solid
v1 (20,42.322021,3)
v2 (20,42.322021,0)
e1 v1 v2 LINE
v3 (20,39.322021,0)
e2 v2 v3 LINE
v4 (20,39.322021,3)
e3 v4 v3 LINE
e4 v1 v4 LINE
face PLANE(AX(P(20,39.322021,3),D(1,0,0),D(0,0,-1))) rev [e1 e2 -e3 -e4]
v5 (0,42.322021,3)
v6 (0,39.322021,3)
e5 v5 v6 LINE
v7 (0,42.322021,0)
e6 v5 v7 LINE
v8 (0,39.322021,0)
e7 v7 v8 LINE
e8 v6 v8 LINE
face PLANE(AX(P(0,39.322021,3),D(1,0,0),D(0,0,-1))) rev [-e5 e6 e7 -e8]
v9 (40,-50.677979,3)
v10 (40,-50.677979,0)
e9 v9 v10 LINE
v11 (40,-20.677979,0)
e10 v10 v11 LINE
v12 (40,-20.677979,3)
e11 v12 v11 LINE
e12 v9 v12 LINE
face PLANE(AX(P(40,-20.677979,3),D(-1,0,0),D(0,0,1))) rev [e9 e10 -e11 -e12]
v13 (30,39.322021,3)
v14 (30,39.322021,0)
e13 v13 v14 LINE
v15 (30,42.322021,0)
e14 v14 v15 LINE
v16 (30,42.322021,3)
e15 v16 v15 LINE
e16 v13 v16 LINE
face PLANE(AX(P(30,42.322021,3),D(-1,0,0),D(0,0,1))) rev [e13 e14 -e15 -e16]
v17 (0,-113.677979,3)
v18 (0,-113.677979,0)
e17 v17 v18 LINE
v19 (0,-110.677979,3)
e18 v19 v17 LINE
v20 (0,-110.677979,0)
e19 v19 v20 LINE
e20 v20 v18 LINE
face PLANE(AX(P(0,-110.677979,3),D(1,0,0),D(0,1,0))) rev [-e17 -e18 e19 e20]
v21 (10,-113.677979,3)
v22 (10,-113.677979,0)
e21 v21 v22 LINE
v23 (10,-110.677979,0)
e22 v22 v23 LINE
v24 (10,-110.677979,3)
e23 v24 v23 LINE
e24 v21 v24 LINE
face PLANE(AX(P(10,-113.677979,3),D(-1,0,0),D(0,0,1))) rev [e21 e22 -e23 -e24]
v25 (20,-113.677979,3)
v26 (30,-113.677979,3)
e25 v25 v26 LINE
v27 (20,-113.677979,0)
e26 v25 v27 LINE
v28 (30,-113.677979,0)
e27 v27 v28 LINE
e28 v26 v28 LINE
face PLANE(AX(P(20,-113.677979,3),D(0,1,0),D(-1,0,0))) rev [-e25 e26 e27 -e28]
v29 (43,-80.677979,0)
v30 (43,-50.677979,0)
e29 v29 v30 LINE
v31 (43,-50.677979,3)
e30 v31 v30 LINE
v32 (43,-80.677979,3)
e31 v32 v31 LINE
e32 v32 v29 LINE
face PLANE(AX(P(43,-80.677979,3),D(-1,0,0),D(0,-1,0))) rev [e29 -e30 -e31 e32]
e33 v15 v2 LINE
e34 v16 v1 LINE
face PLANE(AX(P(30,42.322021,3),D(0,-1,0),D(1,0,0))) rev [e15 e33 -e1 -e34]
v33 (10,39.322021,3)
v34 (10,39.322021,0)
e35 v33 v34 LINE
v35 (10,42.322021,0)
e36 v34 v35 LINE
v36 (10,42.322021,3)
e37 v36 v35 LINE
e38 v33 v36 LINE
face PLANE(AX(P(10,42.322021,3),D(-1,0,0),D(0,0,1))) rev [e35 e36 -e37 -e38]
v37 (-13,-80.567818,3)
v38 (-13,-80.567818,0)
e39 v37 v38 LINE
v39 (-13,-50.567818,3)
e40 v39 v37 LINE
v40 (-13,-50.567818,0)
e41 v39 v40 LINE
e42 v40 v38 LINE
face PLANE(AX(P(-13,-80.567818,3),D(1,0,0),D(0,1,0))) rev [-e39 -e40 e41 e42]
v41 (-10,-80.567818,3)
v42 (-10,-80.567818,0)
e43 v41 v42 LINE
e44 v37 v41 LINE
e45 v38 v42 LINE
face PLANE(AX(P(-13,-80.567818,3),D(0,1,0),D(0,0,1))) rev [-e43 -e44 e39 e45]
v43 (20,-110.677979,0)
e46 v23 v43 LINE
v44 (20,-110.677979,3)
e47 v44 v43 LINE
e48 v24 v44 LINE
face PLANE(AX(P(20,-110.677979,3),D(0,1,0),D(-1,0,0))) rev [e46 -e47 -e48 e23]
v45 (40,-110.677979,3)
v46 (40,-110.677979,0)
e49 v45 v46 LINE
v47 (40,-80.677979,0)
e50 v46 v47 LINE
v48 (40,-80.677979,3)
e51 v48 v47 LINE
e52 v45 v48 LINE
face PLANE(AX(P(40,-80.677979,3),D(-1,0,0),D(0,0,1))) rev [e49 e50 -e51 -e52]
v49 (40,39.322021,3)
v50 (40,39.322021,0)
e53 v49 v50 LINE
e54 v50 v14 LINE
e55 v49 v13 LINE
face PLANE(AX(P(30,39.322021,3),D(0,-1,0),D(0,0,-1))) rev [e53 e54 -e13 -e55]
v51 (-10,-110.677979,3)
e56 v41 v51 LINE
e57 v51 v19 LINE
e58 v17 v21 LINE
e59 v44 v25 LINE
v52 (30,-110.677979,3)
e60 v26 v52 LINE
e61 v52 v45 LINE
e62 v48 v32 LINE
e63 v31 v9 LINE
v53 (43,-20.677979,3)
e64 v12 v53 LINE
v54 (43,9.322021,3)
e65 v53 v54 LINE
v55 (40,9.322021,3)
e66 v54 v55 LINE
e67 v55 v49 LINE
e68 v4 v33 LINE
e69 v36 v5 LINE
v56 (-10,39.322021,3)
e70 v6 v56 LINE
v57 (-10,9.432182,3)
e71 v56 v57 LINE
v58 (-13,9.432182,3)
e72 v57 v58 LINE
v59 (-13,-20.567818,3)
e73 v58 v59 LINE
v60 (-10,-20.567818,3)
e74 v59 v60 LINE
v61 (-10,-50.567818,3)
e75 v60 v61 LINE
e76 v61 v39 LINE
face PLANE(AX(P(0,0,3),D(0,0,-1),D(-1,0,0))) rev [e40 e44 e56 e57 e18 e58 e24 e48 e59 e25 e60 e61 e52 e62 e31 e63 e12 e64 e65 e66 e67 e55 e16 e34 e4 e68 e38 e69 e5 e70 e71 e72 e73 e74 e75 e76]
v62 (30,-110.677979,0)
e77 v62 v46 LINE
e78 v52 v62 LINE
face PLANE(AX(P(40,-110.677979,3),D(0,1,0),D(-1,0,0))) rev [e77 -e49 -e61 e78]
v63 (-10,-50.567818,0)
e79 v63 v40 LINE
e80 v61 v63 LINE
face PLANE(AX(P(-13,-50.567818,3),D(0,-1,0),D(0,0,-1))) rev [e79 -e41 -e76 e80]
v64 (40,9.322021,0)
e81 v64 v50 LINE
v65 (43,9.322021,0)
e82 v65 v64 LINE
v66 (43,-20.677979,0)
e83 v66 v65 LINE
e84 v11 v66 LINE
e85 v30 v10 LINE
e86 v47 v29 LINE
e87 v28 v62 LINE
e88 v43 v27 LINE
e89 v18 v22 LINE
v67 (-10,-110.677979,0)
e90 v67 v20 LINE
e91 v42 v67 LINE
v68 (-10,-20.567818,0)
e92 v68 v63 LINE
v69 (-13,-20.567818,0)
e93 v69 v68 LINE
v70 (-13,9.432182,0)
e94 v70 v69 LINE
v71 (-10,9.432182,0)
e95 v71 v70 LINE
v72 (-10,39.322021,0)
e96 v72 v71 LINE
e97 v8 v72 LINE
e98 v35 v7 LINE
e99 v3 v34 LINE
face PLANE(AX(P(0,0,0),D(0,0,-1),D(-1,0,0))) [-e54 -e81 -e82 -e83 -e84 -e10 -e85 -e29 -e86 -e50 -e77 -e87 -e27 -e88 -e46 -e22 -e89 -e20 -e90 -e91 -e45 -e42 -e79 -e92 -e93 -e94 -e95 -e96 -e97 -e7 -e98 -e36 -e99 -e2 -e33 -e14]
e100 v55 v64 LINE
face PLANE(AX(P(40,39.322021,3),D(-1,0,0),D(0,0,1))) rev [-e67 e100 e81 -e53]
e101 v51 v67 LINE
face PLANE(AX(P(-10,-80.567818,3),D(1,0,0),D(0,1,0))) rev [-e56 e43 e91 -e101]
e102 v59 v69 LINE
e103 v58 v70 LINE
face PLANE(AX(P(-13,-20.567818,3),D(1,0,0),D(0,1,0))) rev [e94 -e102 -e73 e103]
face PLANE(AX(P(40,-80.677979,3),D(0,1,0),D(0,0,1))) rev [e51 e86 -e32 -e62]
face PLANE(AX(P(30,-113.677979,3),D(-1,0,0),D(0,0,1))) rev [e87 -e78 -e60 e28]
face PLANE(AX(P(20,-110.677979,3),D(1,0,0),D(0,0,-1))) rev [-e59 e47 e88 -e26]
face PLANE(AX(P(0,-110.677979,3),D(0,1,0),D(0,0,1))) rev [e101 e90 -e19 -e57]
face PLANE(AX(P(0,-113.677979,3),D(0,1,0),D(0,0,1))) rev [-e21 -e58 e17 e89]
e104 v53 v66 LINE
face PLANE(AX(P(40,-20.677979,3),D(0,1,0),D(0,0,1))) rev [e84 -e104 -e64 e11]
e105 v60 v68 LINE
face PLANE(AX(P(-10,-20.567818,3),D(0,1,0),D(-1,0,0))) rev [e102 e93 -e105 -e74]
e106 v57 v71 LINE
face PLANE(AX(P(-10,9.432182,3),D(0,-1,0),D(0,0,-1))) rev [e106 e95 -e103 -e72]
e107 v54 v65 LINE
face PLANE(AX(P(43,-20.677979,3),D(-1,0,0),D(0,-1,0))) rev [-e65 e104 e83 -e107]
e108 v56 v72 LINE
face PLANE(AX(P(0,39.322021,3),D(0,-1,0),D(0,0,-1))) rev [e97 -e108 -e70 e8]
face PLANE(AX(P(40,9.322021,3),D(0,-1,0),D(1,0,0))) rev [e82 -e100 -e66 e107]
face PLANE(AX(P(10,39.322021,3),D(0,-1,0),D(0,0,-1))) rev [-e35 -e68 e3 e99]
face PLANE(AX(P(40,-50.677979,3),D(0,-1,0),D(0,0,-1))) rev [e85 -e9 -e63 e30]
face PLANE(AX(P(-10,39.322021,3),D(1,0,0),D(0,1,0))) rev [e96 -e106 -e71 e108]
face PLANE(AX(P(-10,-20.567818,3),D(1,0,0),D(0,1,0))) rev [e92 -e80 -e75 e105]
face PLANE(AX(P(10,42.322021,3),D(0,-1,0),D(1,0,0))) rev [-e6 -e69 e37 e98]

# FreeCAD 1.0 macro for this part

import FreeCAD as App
import Part
import Sketcher

V = App.Vector
Q = App.Units.Quantity

doc = App.newDocument("Part")
body = doc.addObject("PartDesign::Body", "Body")

# Sketch on XY plane
sketch1 = body.newObject("Sketcher::SketchObject", "Sketch")
sketch1.AttachmentSupport = (doc.getObject("XY_Plane"), [""])
sketch1.MapMode = "FlatFace"
sketch1.addGeometry(Part.LineSegment(V(-10, -20.6, 0), V(-10, -50.6, 0)), False)
sketch1.addGeometry(Part.LineSegment(V(-10, -50.6, 0), V(-13, -50.6, 0)), False)
sketch1.addGeometry(Part.LineSegment(V(-13, -50.6, 0), V(-13, -80.6, 0)), False)
sketch1.addGeometry(Part.LineSegment(V(-13, -80.6, 0), V(-10, -80.6, 0)), False)
sketch1.addGeometry(Part.LineSegment(V(-10, -80.6, 0), V(-10, -110.7, 0)), False)
sketch1.addGeometry(Part.LineSegment(V(-10, -110.7, 0), V(0, -110.7, 0)), False)
sketch1.addGeometry(Part.LineSegment(V(0, -110.7, 0), V(0, -113.7, 0)), False)
sketch1.addGeometry(Part.LineSegment(V(0, -113.7, 0), V(10, -113.7, 0)), False)
sketch1.addGeometry(Part.LineSegment(V(10, -113.7, 0), V(10, -110.7, 0)), False)
sketch1.addGeometry(Part.LineSegment(V(10, -110.7, 0), V(20, -110.7, 0)), False)
sketch1.addGeometry(Part.LineSegment(V(20, -110.7, 0), V(20, -113.7, 0)), False)
sketch1.addGeometry(Part.LineSegment(V(20, -113.7, 0), V(30, -113.7, 0)), False)
sketch1.addGeometry(Part.LineSegment(V(30, -113.7, 0), V(30, -110.7, 0)), False)
sketch1.addGeometry(Part.LineSegment(V(30, -110.7, 0), V(40, -110.7, 0)), False)
sketch1.addGeometry(Part.LineSegment(V(40, -110.7, 0), V(40, -80.7, 0)), False)
sketch1.addGeometry(Part.LineSegment(V(40, -80.7, 0), V(43, -80.7, 0)), False)
sketch1.addGeometry(Part.LineSegment(V(43, -80.7, 0), V(43, -50.7, 0)), False)
sketch1.addGeometry(Part.LineSegment(V(43, -50.7, 0), V(40, -50.7, 0)), False)
sketch1.addGeometry(Part.LineSegment(V(40, -50.7, 0), V(40, -20.7, 0)), False)
sketch1.addGeometry(Part.LineSegment(V(40, -20.7, 0), V(43, -20.7, 0)), False)
sketch1.addGeometry(Part.LineSegment(V(43, -20.7, 0), V(43, 9.3, 0)), False)
sketch1.addGeometry(Part.LineSegment(V(43, 9.3, 0), V(40, 9.3, 0)), False)
sketch1.addGeometry(Part.LineSegment(V(40, 9.3, 0), V(40, 39.3, 0)), False)
sketch1.addGeometry(Part.LineSegment(V(40, 39.3, 0), V(30, 39.3, 0)), False)
sketch1.addGeometry(Part.LineSegment(V(30, 39.3, 0), V(30, 42.3, 0)), False)
sketch1.addGeometry(Part.LineSegment(V(30, 42.3, 0), V(20, 42.3, 0)), False)
sketch1.addGeometry(Part.LineSegment(V(20, 42.3, 0), V(20, 39.3, 0)), False)
sketch1.addGeometry(Part.LineSegment(V(20, 39.3, 0), V(10, 39.3, 0)), False)
sketch1.addGeometry(Part.LineSegment(V(10, 39.3, 0), V(10, 42.3, 0)), False)
sketch1.addGeometry(Part.LineSegment(V(10, 42.3, 0), V(0, 42.3, 0)), False)
sketch1.addGeometry(Part.LineSegment(V(0, 42.3, 0), V(0, 39.3, 0)), False)
sketch1.addGeometry(Part.LineSegment(V(0, 39.3, 0), V(-10, 39.3, 0)), False)
sketch1.addGeometry(Part.LineSegment(V(-10, 39.3, 0), V(-10, 9.4, 0)), False)
sketch1.addGeometry(Part.LineSegment(V(-10, 9.4, 0), V(-13, 9.4, 0)), False)
sketch1.addGeometry(Part.LineSegment(V(-13, 9.4, 0), V(-13, -20.6, 0)), False)
sketch1.addGeometry(Part.LineSegment(V(-13, -20.6, 0), V(-10, -20.6, 0)), False)
sketch1.addConstraint(Sketcher.Constraint("Coincident", 0, 2, 1, 1))
sketch1.addConstraint(Sketcher.Constraint("Coincident", 1, 2, 2, 1))
sketch1.addConstraint(Sketcher.Constraint("Coincident", 2, 2, 3, 1))
sketch1.addConstraint(Sketcher.Constraint("Coincident", 3, 2, 4, 1))
sketch1.addConstraint(Sketcher.Constraint("Coincident", 4, 2, 5, 1))
sketch1.addConstraint(Sketcher.Constraint("Coincident", 5, 2, 6, 1))
sketch1.addConstraint(Sketcher.Constraint("Coincident", 6, 2, 7, 1))
sketch1.addConstraint(Sketcher.Constraint("Coincident", 7, 2, 8, 1))
sketch1.addConstraint(Sketcher.Constraint("Coincident", 8, 2, 9, 1))
sketch1.addConstraint(Sketcher.Constraint("Coincident", 9, 2, 10, 1))
sketch1.addConstraint(Sketcher.Constraint("Coincident", 10, 2, 11, 1))
sketch1.addConstraint(Sketcher.Constraint("Coincident", 11, 2, 12, 1))
sketch1.addConstraint(Sketcher.Constraint("Coincident", 12, 2, 13, 1))
sketch1.addConstraint(Sketcher.Constraint("Coincident", 13, 2, 14, 1))
sketch1.addConstraint(Sketcher.Constraint("Coincident", 14, 2, 15, 1))
sketch1.addConstraint(Sketcher.Constraint("Coincident", 15, 2, 16, 1))
sketch1.addConstraint(Sketcher.Constraint("Coincident", 16, 2, 17, 1))
sketch1.addConstraint(Sketcher.Constraint("Coincident", 17, 2, 18, 1))
sketch1.addConstraint(Sketcher.Constraint("Coincident", 18, 2, 19, 1))
sketch1.addConstraint(Sketcher.Constraint("Coincident", 19, 2, 20, 1))
sketch1.addConstraint(Sketcher.Constraint("Coincident", 20, 2, 21, 1))
sketch1.addConstraint(Sketcher.Constraint("Coincident", 21, 2, 22, 1))
sketch1.addConstraint(Sketcher.Constraint("Coincident", 22, 2, 23, 1))
sketch1.addConstraint(Sketcher.Constraint("Coincident", 23, 2, 24, 1))
sketch1.addConstraint(Sketcher.Constraint("Coincident", 24, 2, 25, 1))
sketch1.addConstraint(Sketcher.Constraint("Coincident", 25, 2, 26, 1))
sketch1.addConstraint(Sketcher.Constraint("Coincident", 26, 2, 27, 1))
sketch1.addConstraint(Sketcher.Constraint("Coincident", 27, 2, 28, 1))
sketch1.addConstraint(Sketcher.Constraint("Coincident", 28, 2, 29, 1))
sketch1.addConstraint(Sketcher.Constraint("Coincident", 29, 2, 30, 1))
sketch1.addConstraint(Sketcher.Constraint("Coincident", 30, 2, 31, 1))
sketch1.addConstraint(Sketcher.Constraint("Coincident", 31, 2, 32, 1))
sketch1.addConstraint(Sketcher.Constraint("Coincident", 32, 2, 33, 1))
sketch1.addConstraint(Sketcher.Constraint("Coincident", 33, 2, 34, 1))
sketch1.addConstraint(Sketcher.Constraint("Coincident", 34, 2, 35, 1))
sketch1.addConstraint(Sketcher.Constraint("Coincident", 35, 2, 0, 1))
sketch1.addConstraint(Sketcher.Constraint("Vertical", 0))
sketch1.addConstraint(Sketcher.Constraint("Horizontal", 1))
sketch1.addConstraint(Sketcher.Constraint("Vertical", 2))
sketch1.addConstraint(Sketcher.Constraint("Horizontal", 3))
sketch1.addConstraint(Sketcher.Constraint("Vertical", 4))
sketch1.addConstraint(Sketcher.Constraint("Horizontal", 5))
sketch1.addConstraint(Sketcher.Constraint("Vertical", 6))
sketch1.addConstraint(Sketcher.Constraint("Horizontal", 7))
sketch1.addConstraint(Sketcher.Constraint("Vertical", 8))
sketch1.addConstraint(Sketcher.Constraint("Horizontal", 9))
sketch1.addConstraint(Sketcher.Constraint("Vertical", 10))
sketch1.addConstraint(Sketcher.Constraint("Horizontal", 11))
sketch1.addConstraint(Sketcher.Constraint("Vertical", 12))
sketch1.addConstraint(Sketcher.Constraint("Horizontal", 13))
sketch1.addConstraint(Sketcher.Constraint("Vertical", 14))
sketch1.addConstraint(Sketcher.Constraint("Horizontal", 15))
sketch1.addConstraint(Sketcher.Constraint("Vertical", 16))
sketch1.addConstraint(Sketcher.Constraint("Horizontal", 17))
sketch1.addConstraint(Sketcher.Constraint("Vertical", 18))
sketch1.addConstraint(Sketcher.Constraint("Horizontal", 19))
sketch1.addConstraint(Sketcher.Constraint("Vertical", 20))
sketch1.addConstraint(Sketcher.Constraint("Horizontal", 21))
sketch1.addConstraint(Sketcher.Constraint("Vertical", 22))
sketch1.addConstraint(Sketcher.Constraint("Horizontal", 23))
sketch1.addConstraint(Sketcher.Constraint("Vertical", 24))
sketch1.addConstraint(Sketcher.Constraint("Horizontal", 25))
sketch1.addConstraint(Sketcher.Constraint("Vertical", 26))
sketch1.addConstraint(Sketcher.Constraint("Horizontal", 27))
sketch1.addConstraint(Sketcher.Constraint("Vertical", 28))
sketch1.addConstraint(Sketcher.Constraint("Horizontal", 29))
sketch1.addConstraint(Sketcher.Constraint("Vertical", 30))
sketch1.addConstraint(Sketcher.Constraint("Horizontal", 31))
sketch1.addConstraint(Sketcher.Constraint("Vertical", 32))
sketch1.addConstraint(Sketcher.Constraint("Horizontal", 33))
sketch1.addConstraint(Sketcher.Constraint("Vertical", 34))
sketch1.addConstraint(Sketcher.Constraint("Horizontal", 35))
sketch1.addConstraint(Sketcher.Constraint("Symmetric", 4, 2, 8, 2, -2))
sketch1.addConstraint(Sketcher.Constraint("Symmetric", 27, 2, 31, 2, -2))
sketch1.addConstraint(Sketcher.Constraint("PointOnObject", 5, 2, -2))
sketch1.addConstraint(Sketcher.Constraint("PointOnObject", 29, 2, -2))
sketch1.addConstraint(Sketcher.Constraint("Horizontal", 7, 2, 10, 2))
sketch1.addConstraint(Sketcher.Constraint("Horizontal", 9, 2, 12, 2))
sketch1.addConstraint(Sketcher.Constraint("Horizontal", 23, 2, 26, 2))
sketch1.addConstraint(Sketcher.Constraint("Horizontal", 25, 2, 28, 2))
sketch1.addConstraint(Sketcher.Constraint("Vertical", 0, 2, 3, 2))
sketch1.addConstraint(Sketcher.Constraint("Vertical", 14, 2, 17, 2))
sketch1.addConstraint(Sketcher.Constraint("Vertical", 16, 2, 19, 2))
sketch1.addConstraint(Sketcher.Constraint("Vertical", 18, 2, 21, 2))
sketch1.addConstraint(Sketcher.Constraint("Vertical", 12, 2, 23, 2))
sketch1.addConstraint(Sketcher.Constraint("Vertical", 10, 2, 25, 2))
sketch1.addConstraint(Sketcher.Constraint("Vertical", 8, 2, 27, 2))
sketch1.addConstraint(Sketcher.Constraint("Vertical", 2, 2, 33, 2))
sketch1.addConstraint(Sketcher.Constraint("Equal", 7, 9))
sketch1.addConstraint(Sketcher.Constraint("Equal", 9, 11))
sketch1.addConstraint(Sketcher.Constraint("Equal", 11, 13))
sketch1.addConstraint(Sketcher.Constraint("Equal", 3, 15))
sketch1.addConstraint(Sketcher.Constraint("Equal", 0, 2))
sketch1.addConstraint(Sketcher.Constraint("Equal", 35, 6))
sketch1.addConstraint(Sketcher.Constraint("Equal", 2, 14))
sketch1.addConstraint(Sketcher.Constraint("Equal", 14, 16))
sketch1.addConstraint(Sketcher.Constraint("Equal", 16, 18))
sketch1.addConstraint(Sketcher.Constraint("Equal", 18, 20))
sketch1.addConstraint(Sketcher.Constraint("Equal", 20, 22))
sketch1.addConstraint(Sketcher.Constraint("Equal", 12, 24))
sketch1.addConstraint(Sketcher.Constraint("Equal", 22, 34))
sketch1.addConstraint(Sketcher.Constraint("DistanceX", 1, 2, 1, 1, Q("3 mm")))
sketch1.addConstraint(Sketcher.Constraint("DistanceX", 5, 1, 5, 2, Q("10 mm")))
sketch1.addConstraint(Sketcher.Constraint("DistanceY", 0, 2, 0, 1, Q("30 mm")))
sketch1.addConstraint(Sketcher.Constraint("DistanceY", 4, 2, 4, 1, Q("30.110161 mm")))
sketch1.addConstraint(Sketcher.Constraint("DistanceY", 0, 2, -1, 1, Q("50.567818 mm")))
pad1 = body.newObject("PartDesign::Pad", "Pad")
pad1.Profile = sketch1
pad1.Length = 3

doc.recompute()
